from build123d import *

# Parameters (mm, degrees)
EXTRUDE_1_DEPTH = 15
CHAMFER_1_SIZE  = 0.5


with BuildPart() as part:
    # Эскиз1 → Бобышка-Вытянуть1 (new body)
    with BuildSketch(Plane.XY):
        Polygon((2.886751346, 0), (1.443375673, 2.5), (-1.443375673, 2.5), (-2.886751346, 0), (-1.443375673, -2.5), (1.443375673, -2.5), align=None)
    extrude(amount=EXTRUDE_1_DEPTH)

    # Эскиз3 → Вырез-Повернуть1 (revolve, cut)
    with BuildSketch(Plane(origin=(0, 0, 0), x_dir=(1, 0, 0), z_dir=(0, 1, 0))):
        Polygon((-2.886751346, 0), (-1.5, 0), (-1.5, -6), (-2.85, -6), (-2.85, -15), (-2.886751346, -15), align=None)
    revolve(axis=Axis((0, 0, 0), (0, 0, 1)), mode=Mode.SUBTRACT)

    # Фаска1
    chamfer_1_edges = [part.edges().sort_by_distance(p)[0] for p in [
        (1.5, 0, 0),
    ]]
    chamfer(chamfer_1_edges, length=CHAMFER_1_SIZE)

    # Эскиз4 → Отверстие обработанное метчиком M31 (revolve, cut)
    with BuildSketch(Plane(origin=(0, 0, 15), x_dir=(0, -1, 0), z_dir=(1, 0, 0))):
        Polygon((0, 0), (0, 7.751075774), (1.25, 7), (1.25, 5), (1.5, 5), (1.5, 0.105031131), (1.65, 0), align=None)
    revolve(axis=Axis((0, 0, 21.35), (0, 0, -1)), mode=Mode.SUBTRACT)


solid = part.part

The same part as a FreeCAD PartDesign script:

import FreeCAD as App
import Part
import Sketcher

V = App.Vector
Q = App.Units.Quantity


def edges_at(feature, points):
    """Names of the edges that pass closest to the given points."""
    edges = feature.Shape.Edges
    near = lambda p: min(range(len(edges)), key=lambda i: edges[i].distToShape(Part.Vertex(*p))[0])
    return sorted({f"Edge{near(p) + 1}" for p in points})


def add_polygon(sketch, points):
    """Adds a closed chain of lines whose ends are joined by coincident constraints."""
    first, n = sketch.GeometryCount, len(points)
    for a, b in zip(points, points[1:] + points[:1]):
        sketch.addGeometry(Part.LineSegment(App.Vector(*a, 0), App.Vector(*b, 0)), False)
    for i in range(n):
        sketch.addConstraint(Sketcher.Constraint("Coincident", first + i, 2, first + (i + 1) % n, 1))

doc = App.newDocument("Part")
params = doc.addObject("Spreadsheet::Sheet", "Params")
for row, (alias, value) in enumerate([
    ("pad1_length", "15 mm"),
    ("sketch2_height", "15 mm"),
    ("sketch2_height2", "9 mm"),
    ("sketch2_width", "1.35 mm"),
    ("groove_angle", "360 deg"),
    ("chamfer_size", "0.5 mm"),
    ("sketch3_height", "2 mm"),
    ("sketch3_width", "1.65 mm"),
    ("sketch3_width2", "0.25 mm"),
    ("groove2_angle", "360 deg"),
], start=1):
    params.set(f"A{row}", alias)
    params.set(f"B{row}", "=" + value)
    params.setAlias(f"B{row}", alias)

body = doc.addObject("PartDesign::Body", "Body")

# Sketch on XY plane
sketch1 = body.newObject("Sketcher::SketchObject", "Sketch")
sketch1.AttachmentSupport = (doc.getObject("XY_Plane"), [""])
sketch1.MapMode = "FlatFace"
add_polygon(sketch1, [(2.886751, 0), (1.443376, 2.5), (-1.443376, 2.5), (-2.886751, 0), (-1.443376, -2.5), (1.443376, -2.5)])  # lines 0-5
sketch1.addConstraint(Sketcher.Constraint("Horizontal", 1))
sketch1.addConstraint(Sketcher.Constraint("Horizontal", 4))
sketch1.addConstraint(Sketcher.Constraint("Symmetric", 0, 2, 3, 2, -1, 1))
sketch1.addConstraint(Sketcher.Constraint("Symmetric", 2, 2, 5, 2, -1, 1))
sketch1.addConstraint(Sketcher.Constraint("PointOnObject", 2, 2, -1))
sketch1.addConstraint(Sketcher.Constraint("Parallel", 2, 5))
sketch1.addConstraint(Sketcher.Constraint("Vertical", 1, 2, 3, 2))
sketch1.addConstraint(Sketcher.Constraint("Angle", 0, Q("120 deg")))
sketch1.addConstraint(Sketcher.Constraint("DistanceY", 3, 2, 1, 2, 5.0))
sketch1.addConstraint(Sketcher.Constraint("DistanceX", 1, 2, 1, 1, 2.886751))
pad1 = body.newObject("PartDesign::Pad", "Pad")
pad1.Profile = sketch1
pad1.setExpression("Length", "Params.pad1_length")

# Sketch on XZ plane
sketch2 = body.newObject("Sketcher::SketchObject", "Sketch001")
sketch2.AttachmentSupport = (doc.getObject("XZ_Plane"), [""])
sketch2.MapMode = "FlatFace"
add_polygon(sketch2, [(-1.5, 0), (-2.886751, 0), (-2.886751, 15), (-2.85, 15), (-2.85, 6), (-1.5, 6)])  # lines 0-5
sketch2.addConstraint(Sketcher.Constraint("Horizontal", 0))
sketch2.addConstraint(Sketcher.Constraint("Vertical", 1))
sketch2.addConstraint(Sketcher.Constraint("Horizontal", 2))
sketch2.addConstraint(Sketcher.Constraint("Vertical", 3))
sketch2.addConstraint(Sketcher.Constraint("Horizontal", 4))
sketch2.addConstraint(Sketcher.Constraint("Vertical", 5))
sketch2.addConstraint(Sketcher.Constraint("PointOnObject", 0, 2, -1))
sketch2.addConstraint(Sketcher.Constraint("DistanceY", 1, 1, 1, 2, 15.0))
sketch2.addConstraint(Sketcher.Constraint("DistanceY", 3, 2, 3, 1, 9.0))
sketch2.addConstraint(Sketcher.Constraint("DistanceX", 4, 1, 4, 2, 1.35))
sketch2.addConstraint(Sketcher.Constraint("DistanceX", 4, 2, -1, 1, 1.5))
sketch2.addConstraint(Sketcher.Constraint("DistanceX", 0, 2, 0, 1, 1.386751))
sketch2.setExpression("Constraints[13]", "Params.sketch2_height")
sketch2.setExpression("Constraints[14]", "Params.sketch2_height2")
sketch2.setExpression("Constraints[15]", "Params.sketch2_width")
groove = body.newObject("PartDesign::Groove", "Groove")
groove.Profile = sketch2
groove.ReferenceAxis = (sketch2, ["V_Axis"])
groove.setExpression("Angle", "Params.groove_angle")
doc.recompute()

chamfer = body.newObject("PartDesign::Chamfer", "Chamfer")
chamfer.Base = (groove, edges_at(groove, [(1.5, 0, 0)]))
chamfer.setExpression("Size", "Params.chamfer_size")

# Sketch on YZ plane
sketch3 = body.newObject("Sketcher::SketchObject", "Sketch002")
sketch3.AttachmentSupport = (doc.getObject("YZ_Plane"), [""])
sketch3.MapMode = "FlatFace"
add_polygon(sketch3, [(0, 7.248924), (0, 15), (-1.65, 15), (-1.5, 14.894969), (-1.5, 10), (-1.25, 10), (-1.25, 8)])  # lines 0-6
sketch3.addConstraint(Sketcher.Constraint("Vertical", 0))
sketch3.addConstraint(Sketcher.Constraint("Horizontal", 1))
sketch3.addConstraint(Sketcher.Constraint("Vertical", 3))
sketch3.addConstraint(Sketcher.Constraint("Horizontal", 4))
sketch3.addConstraint(Sketcher.Constraint("Vertical", 5))
sketch3.addConstraint(Sketcher.Constraint("PointOnObject", 0, 2, -2))
sketch3.addConstraint(Sketcher.Constraint("DistanceY", 5, 2, 5, 1, 2.0))
sketch3.addConstraint(Sketcher.Constraint("Angle", 2, Q("-35 deg")))
sketch3.addConstraint(Sketcher.Constraint("Angle", 6, Q("-31 deg")))
sketch3.addConstraint(Sketcher.Constraint("DistanceY", -1, 1, 0, 2, 15.0))
sketch3.addConstraint(Sketcher.Constraint("DistanceY", -1, 1, 3, 2, 10.0))
sketch3.addConstraint(Sketcher.Constraint("DistanceX", 1, 2, 1, 1, 1.65))
sketch3.addConstraint(Sketcher.Constraint("DistanceX", 4, 1, 4, 2, 0.25))
sketch3.addConstraint(Sketcher.Constraint("DistanceX", 2, 2, -1, 1, 1.5))
sketch3.setExpression("Constraints[13]", "Params.sketch3_height")
sketch3.setExpression("Constraints[18]", "Params.sketch3_width")
sketch3.setExpression("Constraints[19]", "Params.sketch3_width2")
groove2 = body.newObject("PartDesign::Groove", "Groove001")
groove2.Profile = sketch3
groove2.ReferenceAxis = (sketch3, ["V_Axis"])
groove2.setExpression("Angle", "Params.groove2_angle")

doc.recompute()
